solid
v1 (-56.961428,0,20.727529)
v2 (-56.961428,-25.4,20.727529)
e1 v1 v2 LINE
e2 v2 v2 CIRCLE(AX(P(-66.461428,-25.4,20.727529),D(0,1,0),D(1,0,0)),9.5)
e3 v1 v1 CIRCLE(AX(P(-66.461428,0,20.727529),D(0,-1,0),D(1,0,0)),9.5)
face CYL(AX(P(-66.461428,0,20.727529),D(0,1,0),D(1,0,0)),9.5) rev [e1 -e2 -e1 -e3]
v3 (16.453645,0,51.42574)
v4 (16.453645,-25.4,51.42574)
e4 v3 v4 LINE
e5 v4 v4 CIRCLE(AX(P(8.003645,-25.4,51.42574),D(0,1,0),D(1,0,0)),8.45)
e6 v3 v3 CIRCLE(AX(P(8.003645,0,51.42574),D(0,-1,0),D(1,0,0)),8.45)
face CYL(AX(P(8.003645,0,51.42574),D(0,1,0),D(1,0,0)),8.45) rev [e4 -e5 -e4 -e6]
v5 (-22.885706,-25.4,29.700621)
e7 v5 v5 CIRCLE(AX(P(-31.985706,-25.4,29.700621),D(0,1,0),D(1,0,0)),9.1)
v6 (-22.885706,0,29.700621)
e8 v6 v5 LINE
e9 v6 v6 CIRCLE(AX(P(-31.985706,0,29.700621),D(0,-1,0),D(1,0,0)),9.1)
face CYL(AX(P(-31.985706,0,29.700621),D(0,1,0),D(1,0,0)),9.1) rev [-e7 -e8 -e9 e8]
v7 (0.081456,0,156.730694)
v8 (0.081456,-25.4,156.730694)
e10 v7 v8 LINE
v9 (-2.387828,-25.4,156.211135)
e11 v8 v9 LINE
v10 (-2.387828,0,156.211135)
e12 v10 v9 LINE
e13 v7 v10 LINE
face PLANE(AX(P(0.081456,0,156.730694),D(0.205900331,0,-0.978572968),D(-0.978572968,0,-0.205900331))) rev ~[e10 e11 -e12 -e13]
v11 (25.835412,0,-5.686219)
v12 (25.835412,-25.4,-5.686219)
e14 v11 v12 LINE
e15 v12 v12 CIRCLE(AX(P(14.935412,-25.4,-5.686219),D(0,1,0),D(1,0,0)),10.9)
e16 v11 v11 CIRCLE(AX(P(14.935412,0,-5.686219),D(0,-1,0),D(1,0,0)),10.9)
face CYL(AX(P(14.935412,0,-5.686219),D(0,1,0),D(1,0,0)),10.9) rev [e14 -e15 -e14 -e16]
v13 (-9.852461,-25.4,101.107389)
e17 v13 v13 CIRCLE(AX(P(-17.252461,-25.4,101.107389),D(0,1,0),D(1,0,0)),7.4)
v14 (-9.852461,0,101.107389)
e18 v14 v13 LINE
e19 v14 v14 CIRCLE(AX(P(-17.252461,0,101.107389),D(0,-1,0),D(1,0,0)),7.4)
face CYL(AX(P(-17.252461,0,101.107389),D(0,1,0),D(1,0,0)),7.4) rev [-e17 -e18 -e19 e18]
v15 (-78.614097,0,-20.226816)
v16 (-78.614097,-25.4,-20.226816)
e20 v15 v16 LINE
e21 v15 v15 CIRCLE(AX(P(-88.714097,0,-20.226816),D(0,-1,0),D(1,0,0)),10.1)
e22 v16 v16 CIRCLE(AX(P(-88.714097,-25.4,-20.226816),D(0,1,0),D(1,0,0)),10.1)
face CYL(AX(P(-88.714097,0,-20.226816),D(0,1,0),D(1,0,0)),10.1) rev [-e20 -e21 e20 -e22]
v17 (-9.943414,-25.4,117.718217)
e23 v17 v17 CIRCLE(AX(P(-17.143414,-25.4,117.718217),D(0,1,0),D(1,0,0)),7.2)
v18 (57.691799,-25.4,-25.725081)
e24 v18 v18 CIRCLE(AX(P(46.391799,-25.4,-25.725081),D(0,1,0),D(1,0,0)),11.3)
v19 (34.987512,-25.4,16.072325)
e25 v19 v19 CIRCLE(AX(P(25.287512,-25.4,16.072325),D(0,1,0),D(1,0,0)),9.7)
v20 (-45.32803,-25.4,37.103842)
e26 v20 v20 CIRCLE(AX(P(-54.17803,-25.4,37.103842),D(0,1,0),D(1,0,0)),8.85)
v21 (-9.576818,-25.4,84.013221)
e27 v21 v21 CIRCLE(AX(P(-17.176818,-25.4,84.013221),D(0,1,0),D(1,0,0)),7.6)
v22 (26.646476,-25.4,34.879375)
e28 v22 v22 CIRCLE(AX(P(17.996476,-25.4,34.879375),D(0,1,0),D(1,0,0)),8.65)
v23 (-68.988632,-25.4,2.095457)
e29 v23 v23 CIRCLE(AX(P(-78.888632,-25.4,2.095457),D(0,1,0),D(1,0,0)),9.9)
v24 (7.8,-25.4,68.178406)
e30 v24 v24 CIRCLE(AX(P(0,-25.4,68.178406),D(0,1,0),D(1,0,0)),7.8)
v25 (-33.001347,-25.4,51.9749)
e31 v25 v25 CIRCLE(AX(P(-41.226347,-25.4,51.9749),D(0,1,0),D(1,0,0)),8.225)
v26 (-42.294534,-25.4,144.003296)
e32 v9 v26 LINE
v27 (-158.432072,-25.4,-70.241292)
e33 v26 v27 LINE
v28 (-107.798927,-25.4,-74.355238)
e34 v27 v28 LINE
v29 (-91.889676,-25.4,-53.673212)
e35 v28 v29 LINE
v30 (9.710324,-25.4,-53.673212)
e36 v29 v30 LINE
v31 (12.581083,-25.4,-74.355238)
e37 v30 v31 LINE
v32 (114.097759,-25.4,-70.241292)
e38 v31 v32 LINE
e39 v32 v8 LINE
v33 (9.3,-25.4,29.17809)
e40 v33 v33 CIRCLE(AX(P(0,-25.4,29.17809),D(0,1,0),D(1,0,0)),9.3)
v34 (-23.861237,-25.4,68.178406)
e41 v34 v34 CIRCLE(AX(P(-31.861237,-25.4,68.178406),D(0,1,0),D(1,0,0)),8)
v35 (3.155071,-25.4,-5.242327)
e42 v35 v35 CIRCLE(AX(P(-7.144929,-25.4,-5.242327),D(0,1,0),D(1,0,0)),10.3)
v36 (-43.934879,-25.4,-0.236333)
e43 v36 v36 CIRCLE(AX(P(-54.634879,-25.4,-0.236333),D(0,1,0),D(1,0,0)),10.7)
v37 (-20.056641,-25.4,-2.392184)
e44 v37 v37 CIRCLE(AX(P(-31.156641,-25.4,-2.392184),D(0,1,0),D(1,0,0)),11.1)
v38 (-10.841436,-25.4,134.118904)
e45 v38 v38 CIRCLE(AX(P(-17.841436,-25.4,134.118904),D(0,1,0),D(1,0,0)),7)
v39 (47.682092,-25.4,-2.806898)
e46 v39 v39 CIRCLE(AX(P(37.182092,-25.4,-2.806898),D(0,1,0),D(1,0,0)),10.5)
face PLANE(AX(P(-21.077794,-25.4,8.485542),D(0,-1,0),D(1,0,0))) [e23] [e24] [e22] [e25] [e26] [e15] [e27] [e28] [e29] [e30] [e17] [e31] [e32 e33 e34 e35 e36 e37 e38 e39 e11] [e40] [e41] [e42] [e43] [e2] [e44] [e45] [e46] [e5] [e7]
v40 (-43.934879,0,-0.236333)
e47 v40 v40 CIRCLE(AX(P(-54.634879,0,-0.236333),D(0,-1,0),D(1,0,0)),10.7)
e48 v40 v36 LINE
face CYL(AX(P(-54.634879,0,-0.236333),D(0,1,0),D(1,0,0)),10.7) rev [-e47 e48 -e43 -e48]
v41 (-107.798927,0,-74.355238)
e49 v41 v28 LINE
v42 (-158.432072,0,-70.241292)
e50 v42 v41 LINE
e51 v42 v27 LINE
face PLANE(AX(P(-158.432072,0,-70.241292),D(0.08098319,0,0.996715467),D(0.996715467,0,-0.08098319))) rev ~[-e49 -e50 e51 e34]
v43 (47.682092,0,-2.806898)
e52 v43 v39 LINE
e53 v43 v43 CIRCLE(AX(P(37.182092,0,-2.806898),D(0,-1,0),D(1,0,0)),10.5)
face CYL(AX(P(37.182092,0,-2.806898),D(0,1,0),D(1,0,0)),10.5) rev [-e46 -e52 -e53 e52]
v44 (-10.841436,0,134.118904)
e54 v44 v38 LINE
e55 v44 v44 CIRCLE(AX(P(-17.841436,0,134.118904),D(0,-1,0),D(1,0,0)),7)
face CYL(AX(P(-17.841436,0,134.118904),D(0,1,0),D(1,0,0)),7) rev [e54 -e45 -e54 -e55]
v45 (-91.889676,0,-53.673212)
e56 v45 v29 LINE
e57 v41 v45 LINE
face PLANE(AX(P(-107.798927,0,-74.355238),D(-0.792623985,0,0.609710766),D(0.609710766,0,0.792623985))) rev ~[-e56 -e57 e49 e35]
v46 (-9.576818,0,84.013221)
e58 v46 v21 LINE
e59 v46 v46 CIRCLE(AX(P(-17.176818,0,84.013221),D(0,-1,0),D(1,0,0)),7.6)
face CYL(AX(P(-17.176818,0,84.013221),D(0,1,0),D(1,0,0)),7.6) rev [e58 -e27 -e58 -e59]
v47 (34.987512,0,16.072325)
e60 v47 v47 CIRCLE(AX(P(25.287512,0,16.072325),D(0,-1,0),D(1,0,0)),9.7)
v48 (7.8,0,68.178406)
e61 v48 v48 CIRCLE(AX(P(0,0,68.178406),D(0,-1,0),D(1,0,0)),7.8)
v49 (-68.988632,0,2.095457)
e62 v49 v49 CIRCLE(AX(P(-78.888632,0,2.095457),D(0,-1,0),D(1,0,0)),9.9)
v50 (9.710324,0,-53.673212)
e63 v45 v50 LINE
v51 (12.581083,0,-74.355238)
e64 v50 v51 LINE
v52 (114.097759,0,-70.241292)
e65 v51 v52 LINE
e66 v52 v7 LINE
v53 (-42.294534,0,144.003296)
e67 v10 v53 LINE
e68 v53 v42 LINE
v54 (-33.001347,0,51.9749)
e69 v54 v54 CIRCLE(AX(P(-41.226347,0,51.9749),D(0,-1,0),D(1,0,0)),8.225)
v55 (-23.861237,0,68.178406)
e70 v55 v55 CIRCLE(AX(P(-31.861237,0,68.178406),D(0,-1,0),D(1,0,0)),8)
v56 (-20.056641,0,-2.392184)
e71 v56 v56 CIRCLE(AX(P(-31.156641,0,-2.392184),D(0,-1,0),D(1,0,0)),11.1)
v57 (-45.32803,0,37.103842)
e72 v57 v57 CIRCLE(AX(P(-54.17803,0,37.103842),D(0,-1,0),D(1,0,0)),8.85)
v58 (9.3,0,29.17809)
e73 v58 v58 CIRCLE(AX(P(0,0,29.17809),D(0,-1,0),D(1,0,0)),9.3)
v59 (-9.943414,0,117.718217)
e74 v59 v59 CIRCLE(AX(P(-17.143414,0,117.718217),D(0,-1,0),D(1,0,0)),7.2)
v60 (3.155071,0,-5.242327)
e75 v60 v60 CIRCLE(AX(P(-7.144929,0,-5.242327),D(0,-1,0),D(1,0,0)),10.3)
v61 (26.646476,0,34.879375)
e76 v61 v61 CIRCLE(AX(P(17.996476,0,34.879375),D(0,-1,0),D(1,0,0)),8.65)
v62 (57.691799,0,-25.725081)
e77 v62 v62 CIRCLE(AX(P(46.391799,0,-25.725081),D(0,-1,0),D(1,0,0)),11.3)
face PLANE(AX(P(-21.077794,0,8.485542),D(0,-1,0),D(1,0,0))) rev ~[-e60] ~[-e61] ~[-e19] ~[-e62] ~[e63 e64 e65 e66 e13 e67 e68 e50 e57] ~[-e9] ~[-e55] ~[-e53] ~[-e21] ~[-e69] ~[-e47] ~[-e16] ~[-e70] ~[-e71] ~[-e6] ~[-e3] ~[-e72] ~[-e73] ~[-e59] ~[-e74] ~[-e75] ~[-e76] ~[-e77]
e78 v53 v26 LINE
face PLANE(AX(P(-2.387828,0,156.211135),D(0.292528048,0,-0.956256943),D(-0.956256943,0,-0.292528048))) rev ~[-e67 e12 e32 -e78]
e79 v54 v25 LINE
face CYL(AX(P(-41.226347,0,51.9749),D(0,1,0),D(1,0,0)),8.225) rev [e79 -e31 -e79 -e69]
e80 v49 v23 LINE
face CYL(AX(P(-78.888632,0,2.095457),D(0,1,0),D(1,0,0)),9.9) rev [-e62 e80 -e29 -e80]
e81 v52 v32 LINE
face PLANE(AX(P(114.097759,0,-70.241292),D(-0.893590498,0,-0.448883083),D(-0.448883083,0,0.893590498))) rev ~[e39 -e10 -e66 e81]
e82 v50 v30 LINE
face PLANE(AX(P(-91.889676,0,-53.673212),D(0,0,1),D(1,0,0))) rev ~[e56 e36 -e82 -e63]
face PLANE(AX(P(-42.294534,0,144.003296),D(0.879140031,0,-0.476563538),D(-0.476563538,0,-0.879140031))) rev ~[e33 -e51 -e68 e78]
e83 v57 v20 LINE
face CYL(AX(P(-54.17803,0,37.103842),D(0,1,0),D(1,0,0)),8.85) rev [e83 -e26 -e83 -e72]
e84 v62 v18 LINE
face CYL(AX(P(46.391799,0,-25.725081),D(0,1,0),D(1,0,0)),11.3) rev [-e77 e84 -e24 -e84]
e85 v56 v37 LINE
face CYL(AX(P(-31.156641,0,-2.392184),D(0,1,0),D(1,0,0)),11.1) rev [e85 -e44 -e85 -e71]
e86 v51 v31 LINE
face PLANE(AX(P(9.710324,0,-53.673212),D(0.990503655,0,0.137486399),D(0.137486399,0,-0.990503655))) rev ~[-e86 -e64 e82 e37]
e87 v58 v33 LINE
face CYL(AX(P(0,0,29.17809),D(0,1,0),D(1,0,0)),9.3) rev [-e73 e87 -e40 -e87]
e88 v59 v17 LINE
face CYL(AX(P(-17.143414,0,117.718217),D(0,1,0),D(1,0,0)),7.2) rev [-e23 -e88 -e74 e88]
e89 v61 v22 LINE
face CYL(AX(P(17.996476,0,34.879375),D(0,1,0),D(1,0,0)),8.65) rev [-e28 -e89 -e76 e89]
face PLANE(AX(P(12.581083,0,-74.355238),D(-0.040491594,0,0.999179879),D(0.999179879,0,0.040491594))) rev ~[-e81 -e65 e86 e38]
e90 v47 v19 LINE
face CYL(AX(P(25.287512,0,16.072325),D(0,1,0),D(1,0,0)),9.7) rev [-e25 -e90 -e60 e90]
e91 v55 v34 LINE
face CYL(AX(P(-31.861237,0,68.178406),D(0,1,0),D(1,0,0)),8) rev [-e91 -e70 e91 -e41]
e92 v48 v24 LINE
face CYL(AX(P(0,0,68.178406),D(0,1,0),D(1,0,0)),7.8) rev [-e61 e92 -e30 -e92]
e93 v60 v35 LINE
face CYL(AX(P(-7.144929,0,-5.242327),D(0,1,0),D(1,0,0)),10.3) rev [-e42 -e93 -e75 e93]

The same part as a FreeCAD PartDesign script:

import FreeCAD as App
import Part
import Sketcher
from FreeCAD import Vector
Q = App.Units.Quantity

doc = App.newDocument("Part")
body = doc.addObject("PartDesign::Body", "Body")

# Sketch on XZ plane
sketch1 = doc.addObject("Sketcher::SketchObject", "Sketch")
body.addObject(sketch1)
sketch1.AttachmentSupport = (doc.XZ_Plane, [""])
sketch1.MapMode = "FlatFace"
sketch1.addGeometry([
    Part.LineSegment(Vector(-2.4, 156.2, 0), Vector(-42.3, 144, 0)),  # 0
    Part.LineSegment(Vector(-42.3, 144, 0), Vector(-158.4, -70.2, 0)),  # 1
    Part.LineSegment(Vector(-158.4, -70.2, 0), Vector(-107.8, -74.4, 0)),  # 2
    Part.LineSegment(Vector(-107.8, -74.4, 0), Vector(-91.9, -53.7, 0)),  # 3
    Part.LineSegment(Vector(-91.9, -53.7, 0), Vector(9.7, -53.7, 0)),  # 4
    Part.LineSegment(Vector(9.7, -53.7, 0), Vector(12.6, -74.4, 0)),  # 5
    Part.LineSegment(Vector(12.6, -74.4, 0), Vector(114.1, -70.2, 0)),  # 6
    Part.LineSegment(Vector(114.1, -70.2, 0), Vector(0.1, 156.7, 0)),  # 7
    Part.LineSegment(Vector(0.1, 156.7, 0), Vector(-2.4, 156.2, 0)),  # 8
], False)
sketch1.addConstraint([
    Sketcher.Constraint("Coincident", 0, 2, 1, 1),
    Sketcher.Constraint("Coincident", 1, 2, 2, 1),
    Sketcher.Constraint("Coincident", 2, 2, 3, 1),
    Sketcher.Constraint("Coincident", 3, 2, 4, 1),
    Sketcher.Constraint("Coincident", 4, 2, 5, 1),
    Sketcher.Constraint("Coincident", 5, 2, 6, 1),
    Sketcher.Constraint("Coincident", 6, 2, 7, 1),
    Sketcher.Constraint("Coincident", 7, 2, 8, 1),
    Sketcher.Constraint("Coincident", 8, 2, 0, 1),
    Sketcher.Constraint("Horizontal", 4),
    Sketcher.Constraint("Horizontal", 2, 2, 5, 2),
    Sketcher.Constraint("Horizontal", 1, 2, 6, 2),
    Sketcher.Constraint("Distance", 7, Q("254 mm")),
    Sketcher.Constraint("DistanceX", 4, 1, 4, 2, Q("101.6 mm")),
    Sketcher.Constraint("Distance", 2, Q("50.799999 mm")),
    Sketcher.Constraint("Distance", 6, Q("101.6 mm")),
    Sketcher.Constraint("Distance", 0, Q("41.7322 mm")),
    Sketcher.Constraint("Distance", 1, Q("243.69791 mm")),
    Sketcher.Constraint("Distance", 3, Q("26.093111 mm")),
    Sketcher.Constraint("Distance", 8, Q("2.523352 mm")),
    Sketcher.Constraint("DistanceX", 1, 2, -1, 1, Q("158.432072 mm")),
    Sketcher.Constraint("DistanceY", 1, 2, -1, 1, Q("70.241292 mm")),
    Sketcher.Constraint("DistanceY", 2, 2, -1, 1, Q("74.355238 mm")),
    Sketcher.Constraint("DistanceX", -1, 1, 6, 2, Q("114.097759 mm")),
    Sketcher.Constraint("DistanceX", 1, 2, 0, 2, Q("116.137538 mm")),
    Sketcher.Constraint("DistanceX", 2, 2, 3, 2, Q("15.909251 mm")),
    Sketcher.Constraint("DistanceX", 0, 2, 7, 2, Q("42.37599 mm")),
])
pad1 = doc.addObject("PartDesign::Pad", "Pad")
body.addObject(pad1)
pad1.Profile = sketch1
pad1.Length = 25.4

# Sketch on XZ plane
sketch2 = doc.addObject("Sketcher::SketchObject", "Sketch001")
body.addObject(sketch2)
sketch2.AttachmentSupport = (doc.XZ_Plane, [""])
sketch2.MapMode = "FlatFace"
sketch2.addGeometry([
    Part.Circle(Vector(-18, 134, 0), Vector(0, 0, 1), 7),  # 0
    Part.Circle(Vector(-17, 118, 0), Vector(0, 0, 1), 7),  # 1
    Part.Circle(Vector(-17, 101, 0), Vector(0, 0, 1), 7),  # 2
    Part.Circle(Vector(-17, 84, 0), Vector(0, 0, 1), 8),  # 3
    Part.Circle(Vector(-32, 68, 0), Vector(0, 0, 1), 8),  # 4
    Part.Circle(Vector(0, 68, 0), Vector(0, 0, 1), 8),  # 5
    Part.Circle(Vector(-41, 52, 0), Vector(0, 0, 1), 8),  # 6
    Part.Circle(Vector(8, 51, 0), Vector(0, 0, 1), 8),  # 7
    Part.Circle(Vector(-54, 37, 0), Vector(0, 0, 1), 9),  # 8
    Part.Circle(Vector(18, 35, 0), Vector(0, 0, 1), 9),  # 9
    Part.Circle(Vector(-32, 30, 0), Vector(0, 0, 1), 9),  # 10
    Part.Circle(Vector(0, 29, 0), Vector(0, 0, 1), 9),  # 11
    Part.Circle(Vector(-66, 21, 0), Vector(0, 0, 1), 10),  # 12
    Part.Circle(Vector(25, 16, 0), Vector(0, 0, 1), 10),  # 13
    Part.Circle(Vector(-79, 2, 0), Vector(0, 0, 1), 10),  # 14
    Part.Circle(Vector(37, -3, 0), Vector(0, 0, 1), 10),  # 15
    Part.Circle(Vector(-89, -20, 0), Vector(0, 0, 1), 10),  # 16
    Part.Circle(Vector(-7, -5, 0), Vector(0, 0, 1), 10),  # 17
    Part.Circle(Vector(-55, 0, 0), Vector(0, 0, 1), 11),  # 18
    Part.Circle(Vector(-31, -2, 0), Vector(0, 0, 1), 11),  # 19
    Part.Circle(Vector(15, -6, 0), Vector(0, 0, 1), 11),  # 20
    Part.Circle(Vector(46, -26, 0), Vector(0, 0, 1), 11),  # 21
], False)
sketch2.addConstraint([
    Sketcher.Constraint("PointOnObject", 5, 3, -2),
    Sketcher.Constraint("PointOnObject", 11, 3, -2),
    Sketcher.Constraint("Horizontal", 4, 3, 5, 3),
    Sketcher.Constraint("Diameter", 0, Q("14 mm")),
    Sketcher.Constraint("Diameter", 4, Q("16 mm")),
    Sketcher.Constraint("Diameter", 12, Q("19 mm")),
    Sketcher.Constraint("Diameter", 15, Q("21 mm")),
    Sketcher.Constraint("Diameter", 1, Q("14.4 mm")),
    Sketcher.Constraint("Diameter", 2, Q("14.8 mm")),
    Sketcher.Constraint("Diameter", 3, Q("15.2 mm")),
    Sketcher.Constraint("Diameter", 5, Q("15.6 mm")),
    Sketcher.Constraint("Diameter", 7, Q("16.9 mm")),
    Sketcher.Constraint("Diameter", 8, Q("17.7 mm")),
    Sketcher.Constraint("Diameter", 9, Q("17.3 mm")),
    Sketcher.Constraint("Diameter", 10, Q("18.2 mm")),
    Sketcher.Constraint("Diameter", 11, Q("18.6 mm")),
    Sketcher.Constraint("Diameter", 13, Q("19.4 mm")),
    Sketcher.Constraint("Diameter", 14, Q("19.8 mm")),
    Sketcher.Constraint("Diameter", 16, Q("20.2 mm")),
    Sketcher.Constraint("Diameter", 17, Q("20.6 mm")),
    Sketcher.Constraint("Diameter", 18, Q("21.4 mm")),
    Sketcher.Constraint("Diameter", 19, Q("22.2 mm")),
    Sketcher.Constraint("Diameter", 20, Q("21.8 mm")),
    Sketcher.Constraint("Diameter", 21, Q("22.6 mm")),
    Sketcher.Constraint("Diameter", 6, Q("16.45 mm")),
    Sketcher.Constraint("DistanceY", -1, 1, 6, 3, Q("51.9749 mm")),
    Sketcher.Constraint("DistanceX", -1, 1, 21, 3, Q("46.391799 mm")),
    Sketcher.Constraint("DistanceX", 4, 3, 0, 3, Q("14.019801 mm")),
    Sketcher.Constraint("DistanceX", 10, 3, 15, 3, Q("69.167798 mm")),
    Sketcher.Constraint("DistanceX", 20, 3, 13, 3, Q("10.3521 mm")),
    Sketcher.Constraint("DistanceX", 2, 3, -1, 1, Q("17.252461 mm")),
    Sketcher.Constraint("DistanceY", -1, 1, 2, 3, Q("101.107389 mm")),
    Sketcher.Constraint("DistanceX", 3, 3, -1, 1, Q("17.176818 mm")),
    Sketcher.Constraint("DistanceY", -1, 1, 3, 3, Q("84.013221 mm")),
    Sketcher.Constraint("DistanceY", -1, 1, 7, 3, Q("51.42574 mm")),
    Sketcher.Constraint("DistanceX", 8, 3, -1, 1, Q("54.17803 mm")),
    Sketcher.Constraint("DistanceY", -1, 1, 10, 3, Q("29.700621 mm")),
    Sketcher.Constraint("DistanceY", -1, 1, 11, 3, Q("29.17809 mm")),
    Sketcher.Constraint("DistanceX", 12, 3, -1, 1, Q("66.461428 mm")),
    Sketcher.Constraint("DistanceY", -1, 1, 12, 3, Q("20.727529 mm")),
    Sketcher.Constraint("DistanceX", -1, 1, 13, 3, Q("25.287512 mm")),
    Sketcher.Constraint("DistanceX", 14, 3, -1, 1, Q("78.888632 mm")),
    Sketcher.Constraint("DistanceX", -1, 1, 15, 3, Q("37.182092 mm")),
    Sketcher.Constraint("DistanceX", 17, 3, -1, 1, Q("7.144929 mm")),
    Sketcher.Constraint("DistanceX", 18, 3, -1, 1, Q("54.634879 mm")),
    Sketcher.Constraint("DistanceX", 19, 3, -1, 1, Q("31.156641 mm")),
    Sketcher.Constraint("DistanceY", 20, 3, -1, 1, Q("5.686219 mm")),
    Sketcher.Constraint("DistanceY", 21, 3, -1, 1, Q("25.725081 mm")),
    Sketcher.Constraint("DistanceX", 0, 3, 3, 3, Q("0.664618 mm")),
    Sketcher.Constraint("DistanceY", 4, 3, 1, 3, Q("49.539811 mm")),
    Sketcher.Constraint("DistanceX", 6, 3, 4, 3, Q("9.36511 mm")),
    Sketcher.Constraint("DistanceX", 6, 3, 7, 3, Q("49.229992 mm")),
    Sketcher.Constraint("DistanceY", 8, 3, 3, 3, Q("46.909379 mm")),
    Sketcher.Constraint("DistanceX", 7, 3, 9, 3, Q("9.992831 mm")),
    Sketcher.Constraint("DistanceY", 9, 3, 5, 3, Q("33.299031 mm")),
    Sketcher.Constraint("DistanceY", 13, 3, 9, 3, Q("18.80705 mm")),
    Sketcher.Constraint("DistanceY", 14, 3, 4, 3, Q("66.082949 mm")),
    Sketcher.Constraint("DistanceY", 15, 3, 11, 3, Q("31.984988 mm")),
    Sketcher.Constraint("DistanceX", 16, 3, 12, 3, Q("22.252669 mm")),
    Sketcher.Constraint("DistanceY", 17, 3, 13, 3, Q("21.314652 mm")),
    Sketcher.Constraint("DistanceY", 17, 3, 15, 3, Q("2.435429 mm")),
    Sketcher.Constraint("DistanceY", 18, 3, 12, 3, Q("20.963862 mm")),
    Sketcher.Constraint("DistanceY", 19, 3, 18, 3, Q("2.155851 mm")),
    Sketcher.Constraint("DistanceY", -1, 1, 0, 3, Q("134.118904 mm")),
    Sketcher.Constraint("DistanceX", 1, 3, -1, 1, Q("17.143414 mm")),
    Sketcher.Constraint("DistanceY", 16, 3, -1, 1, Q("20.226816 mm")),
])
pocket1 = doc.addObject("PartDesign::Pocket", "Pocket")
body.addObject(pocket1)
pocket1.Profile = sketch2
pocket1.Type = "ThroughAll"
pocket1.Reversed = True

doc.recompute()
